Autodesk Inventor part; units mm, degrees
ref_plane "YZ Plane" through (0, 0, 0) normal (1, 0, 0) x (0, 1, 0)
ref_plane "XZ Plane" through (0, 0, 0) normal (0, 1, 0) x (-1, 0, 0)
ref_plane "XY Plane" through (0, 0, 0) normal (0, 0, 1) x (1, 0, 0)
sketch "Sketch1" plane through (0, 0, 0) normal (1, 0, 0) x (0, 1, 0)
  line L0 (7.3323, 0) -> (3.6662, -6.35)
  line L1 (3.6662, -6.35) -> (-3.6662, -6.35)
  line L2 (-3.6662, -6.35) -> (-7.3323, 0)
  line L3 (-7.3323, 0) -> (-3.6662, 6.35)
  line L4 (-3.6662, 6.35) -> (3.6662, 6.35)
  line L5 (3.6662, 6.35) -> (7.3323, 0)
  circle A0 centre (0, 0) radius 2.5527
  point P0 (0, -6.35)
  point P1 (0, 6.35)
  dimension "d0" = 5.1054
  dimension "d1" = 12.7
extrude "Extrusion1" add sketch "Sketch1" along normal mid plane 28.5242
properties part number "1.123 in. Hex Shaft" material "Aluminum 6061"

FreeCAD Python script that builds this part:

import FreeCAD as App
import Part
import Sketcher
Q = App.Units.Quantity


def add_polygon(sketch, points):
    """Adds a closed chain of lines whose ends are joined by coincident constraints."""
    first, n = sketch.GeometryCount, len(points)
    for a, b in zip(points, points[1:] + points[:1]):
        sketch.addGeometry(Part.LineSegment(App.Vector(*a, 0), App.Vector(*b, 0)), False)
    for i in range(n):
        sketch.addConstraint(Sketcher.Constraint("Coincident", first + i, 2, first + (i + 1) % n, 1))

doc = App.newDocument("Part")
body = doc.addObject("PartDesign::Body", "Body")

sketch1 = body.newObject("Sketcher::SketchObject", "Sketch")
sketch1.AttachmentSupport = (doc.getObject("YZ_Plane"), [""])
sketch1.MapMode = "FlatFace"
add_polygon(sketch1, [(3.7, -6.3), (7.3, 0), (3.7, 6.3), (-3.7, 6.3), (-7.3, 0), (-3.7, -6.3)])
sketch1.addGeometry(Part.Circle(App.Vector(0, 0, 0), App.Vector(0, 0, 1), 2.6), False)
sketch1.addConstraint(Sketcher.Constraint("Horizontal", 2))
sketch1.addConstraint(Sketcher.Constraint("Horizontal", 5))
sketch1.addConstraint(Sketcher.Constraint("Coincident", 6, 3, -1, 1))
sketch1.addConstraint(Sketcher.Constraint("Symmetric", 0, 2, 3, 2, -1, 1))
sketch1.addConstraint(Sketcher.Constraint("Symmetric", 1, 2, 4, 2, -1, 1))
sketch1.addConstraint(Sketcher.Constraint("PointOnObject", 0, 2, -1))
sketch1.addConstraint(Sketcher.Constraint("Parallel", 0, 3))
sketch1.addConstraint(Sketcher.Constraint("Vertical", 2, 2, 4, 2))
sketch1.addConstraint(Sketcher.Constraint("Diameter", 6, Q("0.201 in")))
sketch1.addConstraint(Sketcher.Constraint("DistanceY", 4, 2, 2, 2, Q("0.5 in")))
sketch1.addConstraint(Sketcher.Constraint("Angle", 0, Q("60.0005 deg")))
sketch1.addConstraint(Sketcher.Constraint("DistanceX", 2, 2, 0, 2, Q("0.433 in")))
pad1 = body.newObject("PartDesign::Pad", "Pad")
pad1.Profile = sketch1
pad1.Length = Q("1.123 in")
pad1.Midplane = True

doc.recompute()
